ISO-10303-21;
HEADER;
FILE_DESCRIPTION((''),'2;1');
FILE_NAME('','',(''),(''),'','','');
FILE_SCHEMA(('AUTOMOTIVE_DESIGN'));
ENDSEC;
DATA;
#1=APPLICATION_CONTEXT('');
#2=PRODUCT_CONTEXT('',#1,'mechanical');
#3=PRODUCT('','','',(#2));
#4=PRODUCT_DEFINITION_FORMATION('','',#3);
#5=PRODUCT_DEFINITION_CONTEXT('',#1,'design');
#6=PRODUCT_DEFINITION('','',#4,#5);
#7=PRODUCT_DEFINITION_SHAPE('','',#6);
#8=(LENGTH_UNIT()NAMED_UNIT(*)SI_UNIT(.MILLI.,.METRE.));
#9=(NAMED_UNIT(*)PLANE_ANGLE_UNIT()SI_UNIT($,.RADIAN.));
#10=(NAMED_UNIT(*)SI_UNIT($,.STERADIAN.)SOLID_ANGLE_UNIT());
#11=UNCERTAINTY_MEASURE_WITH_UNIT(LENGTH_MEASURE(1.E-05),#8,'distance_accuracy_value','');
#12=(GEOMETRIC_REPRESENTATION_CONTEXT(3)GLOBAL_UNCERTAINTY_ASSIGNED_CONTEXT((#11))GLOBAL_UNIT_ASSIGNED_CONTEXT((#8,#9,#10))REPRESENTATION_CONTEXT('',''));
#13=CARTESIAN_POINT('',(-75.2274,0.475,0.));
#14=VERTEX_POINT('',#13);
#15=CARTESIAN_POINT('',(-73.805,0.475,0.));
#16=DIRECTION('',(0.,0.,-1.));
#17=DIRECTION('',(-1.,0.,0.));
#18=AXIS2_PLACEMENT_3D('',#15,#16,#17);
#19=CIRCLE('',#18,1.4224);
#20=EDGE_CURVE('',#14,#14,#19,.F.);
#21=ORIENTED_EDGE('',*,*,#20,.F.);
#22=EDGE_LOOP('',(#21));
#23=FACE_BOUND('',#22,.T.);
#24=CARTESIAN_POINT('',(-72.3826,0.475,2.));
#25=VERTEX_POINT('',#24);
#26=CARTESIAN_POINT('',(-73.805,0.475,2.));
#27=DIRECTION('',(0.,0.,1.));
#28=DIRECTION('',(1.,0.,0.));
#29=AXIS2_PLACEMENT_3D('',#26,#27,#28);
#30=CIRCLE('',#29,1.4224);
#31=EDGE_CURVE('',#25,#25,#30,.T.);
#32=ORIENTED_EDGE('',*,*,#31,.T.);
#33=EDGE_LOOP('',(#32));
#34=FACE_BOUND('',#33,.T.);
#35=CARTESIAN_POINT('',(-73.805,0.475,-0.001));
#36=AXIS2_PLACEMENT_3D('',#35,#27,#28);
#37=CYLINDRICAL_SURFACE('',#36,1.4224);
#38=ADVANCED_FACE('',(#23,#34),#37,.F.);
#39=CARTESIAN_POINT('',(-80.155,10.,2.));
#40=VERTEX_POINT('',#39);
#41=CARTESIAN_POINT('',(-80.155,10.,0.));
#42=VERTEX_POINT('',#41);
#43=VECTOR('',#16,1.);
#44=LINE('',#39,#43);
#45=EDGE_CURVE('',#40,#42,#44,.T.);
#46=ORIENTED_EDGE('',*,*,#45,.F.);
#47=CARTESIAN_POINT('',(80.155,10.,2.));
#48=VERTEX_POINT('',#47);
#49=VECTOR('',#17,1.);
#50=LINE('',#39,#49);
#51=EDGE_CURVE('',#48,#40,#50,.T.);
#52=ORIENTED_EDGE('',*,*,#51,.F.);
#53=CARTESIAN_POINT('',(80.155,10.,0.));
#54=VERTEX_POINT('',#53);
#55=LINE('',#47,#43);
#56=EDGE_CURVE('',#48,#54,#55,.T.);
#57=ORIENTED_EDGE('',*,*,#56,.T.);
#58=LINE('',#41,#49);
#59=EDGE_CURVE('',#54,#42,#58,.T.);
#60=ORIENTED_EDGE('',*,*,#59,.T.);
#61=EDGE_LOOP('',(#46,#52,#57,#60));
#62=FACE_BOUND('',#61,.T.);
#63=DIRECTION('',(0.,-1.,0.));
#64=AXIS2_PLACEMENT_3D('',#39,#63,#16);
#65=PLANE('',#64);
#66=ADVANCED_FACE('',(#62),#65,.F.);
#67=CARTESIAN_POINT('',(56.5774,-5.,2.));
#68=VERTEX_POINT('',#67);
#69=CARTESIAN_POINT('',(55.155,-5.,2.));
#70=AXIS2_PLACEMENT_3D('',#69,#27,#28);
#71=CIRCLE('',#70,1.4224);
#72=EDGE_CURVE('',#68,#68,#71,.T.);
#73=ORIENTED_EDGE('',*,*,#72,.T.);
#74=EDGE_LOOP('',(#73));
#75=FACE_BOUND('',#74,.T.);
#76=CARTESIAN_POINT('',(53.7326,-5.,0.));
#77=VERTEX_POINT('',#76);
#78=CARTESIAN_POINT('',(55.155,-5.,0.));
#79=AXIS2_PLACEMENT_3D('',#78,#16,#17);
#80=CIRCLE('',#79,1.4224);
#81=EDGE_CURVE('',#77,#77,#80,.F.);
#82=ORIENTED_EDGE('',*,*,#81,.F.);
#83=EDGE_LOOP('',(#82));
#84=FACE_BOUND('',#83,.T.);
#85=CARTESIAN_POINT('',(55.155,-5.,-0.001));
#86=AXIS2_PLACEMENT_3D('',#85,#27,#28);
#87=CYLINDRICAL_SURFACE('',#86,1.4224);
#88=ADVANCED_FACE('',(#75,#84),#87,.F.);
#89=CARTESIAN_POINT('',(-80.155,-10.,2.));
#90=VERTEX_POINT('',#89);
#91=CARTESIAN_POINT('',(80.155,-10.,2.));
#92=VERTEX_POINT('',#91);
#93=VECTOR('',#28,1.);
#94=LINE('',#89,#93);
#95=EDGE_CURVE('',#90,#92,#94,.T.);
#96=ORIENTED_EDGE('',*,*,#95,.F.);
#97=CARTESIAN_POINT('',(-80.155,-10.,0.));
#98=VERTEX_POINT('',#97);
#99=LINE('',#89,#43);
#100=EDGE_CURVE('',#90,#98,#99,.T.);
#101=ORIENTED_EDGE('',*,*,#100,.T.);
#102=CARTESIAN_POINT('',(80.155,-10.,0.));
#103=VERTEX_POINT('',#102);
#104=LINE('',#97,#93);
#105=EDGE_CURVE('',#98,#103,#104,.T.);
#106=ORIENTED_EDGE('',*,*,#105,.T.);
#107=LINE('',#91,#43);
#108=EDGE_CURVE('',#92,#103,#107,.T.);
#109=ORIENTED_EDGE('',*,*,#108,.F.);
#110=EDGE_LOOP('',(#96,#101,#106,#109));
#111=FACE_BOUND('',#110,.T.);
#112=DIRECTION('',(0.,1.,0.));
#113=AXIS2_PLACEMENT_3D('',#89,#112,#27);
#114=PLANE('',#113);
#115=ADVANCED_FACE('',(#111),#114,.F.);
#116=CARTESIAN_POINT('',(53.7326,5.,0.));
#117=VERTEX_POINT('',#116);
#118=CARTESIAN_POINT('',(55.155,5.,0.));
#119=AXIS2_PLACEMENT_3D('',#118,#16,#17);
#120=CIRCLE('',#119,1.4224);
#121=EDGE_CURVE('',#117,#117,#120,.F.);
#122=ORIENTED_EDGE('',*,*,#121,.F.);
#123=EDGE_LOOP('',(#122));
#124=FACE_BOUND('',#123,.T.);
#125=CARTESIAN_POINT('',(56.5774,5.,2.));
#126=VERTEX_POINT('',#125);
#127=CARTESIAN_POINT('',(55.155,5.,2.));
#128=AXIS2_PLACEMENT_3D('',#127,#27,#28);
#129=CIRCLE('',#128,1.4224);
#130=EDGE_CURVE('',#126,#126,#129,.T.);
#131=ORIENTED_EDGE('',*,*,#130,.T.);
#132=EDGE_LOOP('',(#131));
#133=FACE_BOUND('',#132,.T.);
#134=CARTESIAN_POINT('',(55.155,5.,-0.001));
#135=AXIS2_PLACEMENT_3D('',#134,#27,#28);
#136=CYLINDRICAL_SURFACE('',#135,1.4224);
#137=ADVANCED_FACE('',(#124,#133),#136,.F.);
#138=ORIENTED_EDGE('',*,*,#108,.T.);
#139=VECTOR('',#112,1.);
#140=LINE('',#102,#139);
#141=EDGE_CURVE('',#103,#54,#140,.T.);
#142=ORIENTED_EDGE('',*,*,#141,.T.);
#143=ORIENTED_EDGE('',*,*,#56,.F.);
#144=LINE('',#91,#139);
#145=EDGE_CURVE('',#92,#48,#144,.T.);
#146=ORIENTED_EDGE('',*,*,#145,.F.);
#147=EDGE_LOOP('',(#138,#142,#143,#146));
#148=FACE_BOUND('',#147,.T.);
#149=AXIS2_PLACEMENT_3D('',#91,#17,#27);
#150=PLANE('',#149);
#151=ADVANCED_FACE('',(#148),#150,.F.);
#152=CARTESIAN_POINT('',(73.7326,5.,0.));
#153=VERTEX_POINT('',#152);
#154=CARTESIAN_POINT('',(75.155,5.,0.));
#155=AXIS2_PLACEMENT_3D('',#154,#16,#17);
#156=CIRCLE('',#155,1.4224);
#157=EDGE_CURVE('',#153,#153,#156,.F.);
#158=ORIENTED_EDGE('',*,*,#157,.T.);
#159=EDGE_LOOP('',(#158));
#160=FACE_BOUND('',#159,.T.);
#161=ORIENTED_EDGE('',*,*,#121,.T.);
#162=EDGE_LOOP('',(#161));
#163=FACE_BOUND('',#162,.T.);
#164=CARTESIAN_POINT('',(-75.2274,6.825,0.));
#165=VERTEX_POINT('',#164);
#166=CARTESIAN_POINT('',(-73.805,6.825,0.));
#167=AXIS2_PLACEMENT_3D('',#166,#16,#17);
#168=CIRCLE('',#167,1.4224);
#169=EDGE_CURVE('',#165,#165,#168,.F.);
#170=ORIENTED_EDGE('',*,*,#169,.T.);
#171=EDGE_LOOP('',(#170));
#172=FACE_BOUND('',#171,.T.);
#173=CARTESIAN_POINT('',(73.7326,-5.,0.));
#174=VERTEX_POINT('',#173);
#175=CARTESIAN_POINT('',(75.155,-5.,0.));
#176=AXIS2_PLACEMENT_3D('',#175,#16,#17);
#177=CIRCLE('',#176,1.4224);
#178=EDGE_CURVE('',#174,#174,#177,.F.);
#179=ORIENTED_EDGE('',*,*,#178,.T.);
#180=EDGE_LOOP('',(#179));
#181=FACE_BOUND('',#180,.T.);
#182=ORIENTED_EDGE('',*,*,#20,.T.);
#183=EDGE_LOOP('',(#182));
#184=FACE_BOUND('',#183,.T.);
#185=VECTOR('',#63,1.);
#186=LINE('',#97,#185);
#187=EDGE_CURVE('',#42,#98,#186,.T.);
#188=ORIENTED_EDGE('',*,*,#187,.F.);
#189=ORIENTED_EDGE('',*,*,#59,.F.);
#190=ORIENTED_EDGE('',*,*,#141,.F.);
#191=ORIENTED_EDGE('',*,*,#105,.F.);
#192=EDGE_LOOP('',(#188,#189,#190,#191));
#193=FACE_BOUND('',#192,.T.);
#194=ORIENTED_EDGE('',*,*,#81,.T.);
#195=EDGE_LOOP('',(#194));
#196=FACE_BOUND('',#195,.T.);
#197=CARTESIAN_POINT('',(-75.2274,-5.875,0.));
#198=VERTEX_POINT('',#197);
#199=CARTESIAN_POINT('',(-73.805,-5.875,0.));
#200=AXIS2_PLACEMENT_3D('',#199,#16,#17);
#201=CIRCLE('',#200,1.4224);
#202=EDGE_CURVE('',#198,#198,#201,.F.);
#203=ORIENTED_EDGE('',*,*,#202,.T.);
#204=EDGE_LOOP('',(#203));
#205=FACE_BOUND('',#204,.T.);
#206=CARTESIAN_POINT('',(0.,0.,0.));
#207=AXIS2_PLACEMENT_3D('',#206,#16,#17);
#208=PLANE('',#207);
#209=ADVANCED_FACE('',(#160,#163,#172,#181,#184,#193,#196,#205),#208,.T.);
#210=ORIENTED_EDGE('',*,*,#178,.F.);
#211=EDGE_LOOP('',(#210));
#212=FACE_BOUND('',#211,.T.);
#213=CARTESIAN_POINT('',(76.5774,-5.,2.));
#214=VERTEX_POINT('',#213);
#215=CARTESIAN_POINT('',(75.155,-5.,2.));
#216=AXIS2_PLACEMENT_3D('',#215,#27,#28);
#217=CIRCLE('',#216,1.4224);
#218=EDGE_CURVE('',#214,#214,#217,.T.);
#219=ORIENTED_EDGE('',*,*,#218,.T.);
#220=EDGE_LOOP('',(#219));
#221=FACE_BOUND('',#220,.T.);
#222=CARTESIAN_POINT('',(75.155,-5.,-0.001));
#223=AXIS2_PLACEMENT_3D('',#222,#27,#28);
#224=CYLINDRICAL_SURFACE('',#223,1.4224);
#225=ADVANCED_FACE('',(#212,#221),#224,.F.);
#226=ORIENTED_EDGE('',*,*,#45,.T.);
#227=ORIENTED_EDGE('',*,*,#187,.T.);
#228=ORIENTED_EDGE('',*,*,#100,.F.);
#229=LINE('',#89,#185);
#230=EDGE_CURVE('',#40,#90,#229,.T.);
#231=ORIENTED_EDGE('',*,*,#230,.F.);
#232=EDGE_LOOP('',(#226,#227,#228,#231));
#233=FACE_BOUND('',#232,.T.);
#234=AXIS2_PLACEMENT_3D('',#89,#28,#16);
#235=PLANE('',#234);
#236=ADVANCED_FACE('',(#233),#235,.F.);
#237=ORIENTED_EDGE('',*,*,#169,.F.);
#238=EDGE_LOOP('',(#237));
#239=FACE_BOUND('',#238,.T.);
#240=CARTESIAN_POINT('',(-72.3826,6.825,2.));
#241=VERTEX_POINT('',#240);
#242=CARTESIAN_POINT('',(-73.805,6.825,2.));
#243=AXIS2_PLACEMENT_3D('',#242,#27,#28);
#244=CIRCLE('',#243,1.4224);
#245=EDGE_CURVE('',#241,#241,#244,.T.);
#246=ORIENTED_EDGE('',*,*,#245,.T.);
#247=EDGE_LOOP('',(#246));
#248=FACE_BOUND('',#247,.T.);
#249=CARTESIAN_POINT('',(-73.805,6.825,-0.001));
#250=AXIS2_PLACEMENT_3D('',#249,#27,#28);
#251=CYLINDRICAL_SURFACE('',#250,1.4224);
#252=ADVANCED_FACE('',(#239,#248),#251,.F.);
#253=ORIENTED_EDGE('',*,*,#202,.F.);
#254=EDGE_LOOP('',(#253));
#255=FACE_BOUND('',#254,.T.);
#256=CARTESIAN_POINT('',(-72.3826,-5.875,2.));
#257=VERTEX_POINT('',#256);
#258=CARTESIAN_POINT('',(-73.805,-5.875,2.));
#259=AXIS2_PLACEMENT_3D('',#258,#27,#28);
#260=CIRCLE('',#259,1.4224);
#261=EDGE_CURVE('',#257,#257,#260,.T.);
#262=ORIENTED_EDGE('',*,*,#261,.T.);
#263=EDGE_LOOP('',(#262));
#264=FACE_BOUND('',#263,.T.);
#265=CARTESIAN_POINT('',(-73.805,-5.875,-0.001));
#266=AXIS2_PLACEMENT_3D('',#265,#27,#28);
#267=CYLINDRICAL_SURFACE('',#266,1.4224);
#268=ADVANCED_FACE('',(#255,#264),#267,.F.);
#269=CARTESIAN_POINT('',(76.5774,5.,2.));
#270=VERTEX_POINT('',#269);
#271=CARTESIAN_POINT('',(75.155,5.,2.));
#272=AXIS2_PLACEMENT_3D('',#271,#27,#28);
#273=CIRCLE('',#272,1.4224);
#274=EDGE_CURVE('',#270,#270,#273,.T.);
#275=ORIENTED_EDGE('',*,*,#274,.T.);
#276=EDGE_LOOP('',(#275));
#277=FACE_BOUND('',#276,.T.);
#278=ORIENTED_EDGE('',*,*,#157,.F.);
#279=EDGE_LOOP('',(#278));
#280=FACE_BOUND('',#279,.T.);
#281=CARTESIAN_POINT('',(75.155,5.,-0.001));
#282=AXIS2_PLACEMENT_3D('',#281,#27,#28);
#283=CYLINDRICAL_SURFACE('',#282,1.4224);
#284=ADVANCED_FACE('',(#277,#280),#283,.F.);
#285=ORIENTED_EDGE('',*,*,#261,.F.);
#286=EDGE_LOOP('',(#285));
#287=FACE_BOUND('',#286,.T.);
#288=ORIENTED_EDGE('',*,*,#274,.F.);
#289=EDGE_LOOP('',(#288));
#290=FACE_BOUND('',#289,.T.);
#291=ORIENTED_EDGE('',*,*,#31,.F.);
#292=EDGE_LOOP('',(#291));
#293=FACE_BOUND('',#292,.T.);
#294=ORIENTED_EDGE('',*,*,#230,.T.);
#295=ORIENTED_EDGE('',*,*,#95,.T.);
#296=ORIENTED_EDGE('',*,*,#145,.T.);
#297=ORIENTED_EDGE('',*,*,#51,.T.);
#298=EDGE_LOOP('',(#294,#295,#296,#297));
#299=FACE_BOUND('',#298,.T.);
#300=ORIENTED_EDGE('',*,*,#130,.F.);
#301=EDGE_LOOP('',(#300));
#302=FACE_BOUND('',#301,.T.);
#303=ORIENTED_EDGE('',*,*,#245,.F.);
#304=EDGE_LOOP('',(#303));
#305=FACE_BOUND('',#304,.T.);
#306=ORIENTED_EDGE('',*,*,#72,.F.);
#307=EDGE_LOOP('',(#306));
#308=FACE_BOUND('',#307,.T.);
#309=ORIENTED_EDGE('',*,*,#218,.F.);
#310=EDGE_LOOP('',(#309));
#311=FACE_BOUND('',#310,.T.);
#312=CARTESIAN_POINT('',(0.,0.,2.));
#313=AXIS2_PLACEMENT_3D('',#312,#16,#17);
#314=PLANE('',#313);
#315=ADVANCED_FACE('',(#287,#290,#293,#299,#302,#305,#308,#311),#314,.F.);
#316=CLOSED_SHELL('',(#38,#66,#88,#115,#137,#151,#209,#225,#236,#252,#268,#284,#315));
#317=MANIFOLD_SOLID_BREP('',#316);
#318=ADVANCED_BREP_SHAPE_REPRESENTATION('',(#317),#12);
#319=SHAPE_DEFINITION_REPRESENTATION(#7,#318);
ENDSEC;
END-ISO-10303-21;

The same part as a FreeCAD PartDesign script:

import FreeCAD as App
import Part
import Sketcher
from FreeCAD import Vector


def add_polygon(sketch, points):
    """Adds a closed chain of lines whose ends are joined by coincident constraints."""
    first, n = sketch.GeometryCount, len(points)
    for a, b in zip(points, points[1:] + points[:1]):
        sketch.addGeometry(Part.LineSegment(App.Vector(*a, 0), App.Vector(*b, 0)), False)
    for i in range(n):
        sketch.addConstraint(Sketcher.Constraint("Coincident", first + i, 2, first + (i + 1) % n, 1))

doc = App.newDocument("Part")
body = doc.addObject("PartDesign::Body", "Body")

sketch1 = doc.addObject("Sketcher::SketchObject", "Sketch")
body.addObject(sketch1)
sketch1.AttachmentSupport = (doc.XY_Plane, [""])
sketch1.MapMode = "FlatFace"
add_polygon(sketch1, [(-80, 10), (-80, -10), (80, -10), (80, 10)])
sketch1.addConstraint(Sketcher.Constraint("Vertical", 0))
sketch1.addConstraint(Sketcher.Constraint("Horizontal", 1))
sketch1.addConstraint(Sketcher.Constraint("Vertical", 2))
sketch1.addConstraint(Sketcher.Constraint("Horizontal", 3))
sketch1.addConstraint(Sketcher.Constraint("Symmetric", 0, 2, 2, 2, -1, 1))
sketch1.addConstraint(Sketcher.Constraint("DistanceY", 0, 2, 0, 1, 20.0))
sketch1.addConstraint(Sketcher.Constraint("DistanceX", 1, 1, 1, 2, 160.31))
pad1 = doc.addObject("PartDesign::Pad", "Pad")
body.addObject(pad1)
pad1.Profile = sketch1
pad1.Length = 2

sketch2 = doc.addObject("Sketcher::SketchObject", "Sketch001")
body.addObject(sketch2)
sketch2.AttachmentSupport = (doc.XY_Plane, [""])
sketch2.MapMode = "FlatFace"
sketch2.AttachmentOffset = App.Placement(Vector(0, 0, 2), App.Rotation())
sketch2.addGeometry(Part.Circle(Vector(-73.8, 6.8, 0), Vector(0, 0, 1), 1.4), False)
sketch2.addConstraint(Sketcher.Constraint("Diameter", 0, 2.8448))
sketch2.addConstraint(Sketcher.Constraint("DistanceX", 0, 3, -1, 1, 73.805))
sketch2.addConstraint(Sketcher.Constraint("DistanceY", -1, 1, 0, 3, 6.825))
pocket1 = doc.addObject("PartDesign::Pocket", "Pocket")
body.addObject(pocket1)
pocket1.Profile = sketch2
pocket1.Type = "UpToFirst"

sketch3 = doc.addObject("Sketcher::SketchObject", "Sketch002")
body.addObject(sketch3)
sketch3.AttachmentSupport = (doc.XY_Plane, [""])
sketch3.MapMode = "FlatFace"
sketch3.AttachmentOffset = App.Placement(Vector(0, 0, 2), App.Rotation())
sketch3.addGeometry(Part.Circle(Vector(-73.8, 0.5, 0), Vector(0, 0, 1), 1.4), False)
sketch3.addConstraint(Sketcher.Constraint("Diameter", 0, 2.8448))
sketch3.addConstraint(Sketcher.Constraint("DistanceX", 0, 3, -1, 1, 73.805))
sketch3.addConstraint(Sketcher.Constraint("DistanceY", -1, 1, 0, 3, 0.475))
pocket2 = doc.addObject("PartDesign::Pocket", "Pocket001")
body.addObject(pocket2)
pocket2.Profile = sketch3
pocket2.Type = "UpToFirst"

sketch4 = doc.addObject("Sketcher::SketchObject", "Sketch003")
body.addObject(sketch4)
sketch4.AttachmentSupport = (doc.XY_Plane, [""])
sketch4.MapMode = "FlatFace"
sketch4.AttachmentOffset = App.Placement(Vector(0, 0, 2), App.Rotation())
sketch4.addGeometry(Part.Circle(Vector(-73.8, -5.9, 0), Vector(0, 0, 1), 1.4), False)
sketch4.addConstraint(Sketcher.Constraint("Diameter", 0, 2.8448))
sketch4.addConstraint(Sketcher.Constraint("DistanceX", 0, 3, -1, 1, 73.805))
sketch4.addConstraint(Sketcher.Constraint("DistanceY", 0, 3, -1, 1, 5.875))
pocket3 = doc.addObject("PartDesign::Pocket", "Pocket002")
body.addObject(pocket3)
pocket3.Profile = sketch4
pocket3.Type = "UpToFirst"

sketch5 = doc.addObject("Sketcher::SketchObject", "Sketch004")
body.addObject(sketch5)
sketch5.AttachmentSupport = (doc.XY_Plane, [""])
sketch5.MapMode = "FlatFace"
sketch5.AttachmentOffset = App.Placement(Vector(0, 0, 2), App.Rotation())
sketch5.addGeometry(Part.Circle(Vector(75.2, 5, 0), Vector(0, 0, 1), 1.4), False)
sketch5.addConstraint(Sketcher.Constraint("DistanceY", -1, 1, 0, 3, 5.0))
sketch5.addConstraint(Sketcher.Constraint("Diameter", 0, 2.8448))
sketch5.addConstraint(Sketcher.Constraint("DistanceX", -1, 1, 0, 3, 75.155))
pocket4 = doc.addObject("PartDesign::Pocket", "Pocket003")
body.addObject(pocket4)
pocket4.Profile = sketch5
pocket4.Type = "UpToFirst"

sketch6 = doc.addObject("Sketcher::SketchObject", "Sketch005")
body.addObject(sketch6)
sketch6.AttachmentSupport = (doc.XY_Plane, [""])
sketch6.MapMode = "FlatFace"
sketch6.AttachmentOffset = App.Placement(Vector(0, 0, 2), App.Rotation())
sketch6.addGeometry(Part.Circle(Vector(55.2, 5, 0), Vector(0, 0, 1), 1.4), False)
sketch6.addConstraint(Sketcher.Constraint("DistanceY", -1, 1, 0, 3, 5.0))
sketch6.addConstraint(Sketcher.Constraint("Diameter", 0, 2.8448))
sketch6.addConstraint(Sketcher.Constraint("DistanceX", -1, 1, 0, 3, 55.155))
pocket5 = doc.addObject("PartDesign::Pocket", "Pocket004")
body.addObject(pocket5)
pocket5.Profile = sketch6
pocket5.Type = "UpToFirst"

sketch7 = doc.addObject("Sketcher::SketchObject", "Sketch006")
body.addObject(sketch7)
sketch7.AttachmentSupport = (doc.XY_Plane, [""])
sketch7.MapMode = "FlatFace"
sketch7.AttachmentOffset = App.Placement(Vector(0, 0, 2), App.Rotation())
sketch7.addGeometry(Part.Circle(Vector(55.2, -5, 0), Vector(0, 0, 1), 1.4), False)
sketch7.addConstraint(Sketcher.Constraint("DistanceY", 0, 3, -1, 1, 5.0))
sketch7.addConstraint(Sketcher.Constraint("Diameter", 0, 2.8448))
sketch7.addConstraint(Sketcher.Constraint("DistanceX", -1, 1, 0, 3, 55.155))
pocket6 = doc.addObject("PartDesign::Pocket", "Pocket005")
body.addObject(pocket6)
pocket6.Profile = sketch7
pocket6.Type = "UpToFirst"

sketch8 = doc.addObject("Sketcher::SketchObject", "Sketch007")
body.addObject(sketch8)
sketch8.AttachmentSupport = (doc.XY_Plane, [""])
sketch8.MapMode = "FlatFace"
sketch8.AttachmentOffset = App.Placement(Vector(0, 0, 2), App.Rotation())
sketch8.addGeometry(Part.Circle(Vector(75.2, -5, 0), Vector(0, 0, 1), 1.4), False)
sketch8.addConstraint(Sketcher.Constraint("DistanceY", 0, 3, -1, 1, 5.0))
sketch8.addConstraint(Sketcher.Constraint("Diameter", 0, 2.8448))
sketch8.addConstraint(Sketcher.Constraint("DistanceX", -1, 1, 0, 3, 75.155))
pocket7 = doc.addObject("PartDesign::Pocket", "Pocket006")
body.addObject(pocket7)
pocket7.Profile = sketch8
pocket7.Type = "UpToFirst"

doc.recompute()
